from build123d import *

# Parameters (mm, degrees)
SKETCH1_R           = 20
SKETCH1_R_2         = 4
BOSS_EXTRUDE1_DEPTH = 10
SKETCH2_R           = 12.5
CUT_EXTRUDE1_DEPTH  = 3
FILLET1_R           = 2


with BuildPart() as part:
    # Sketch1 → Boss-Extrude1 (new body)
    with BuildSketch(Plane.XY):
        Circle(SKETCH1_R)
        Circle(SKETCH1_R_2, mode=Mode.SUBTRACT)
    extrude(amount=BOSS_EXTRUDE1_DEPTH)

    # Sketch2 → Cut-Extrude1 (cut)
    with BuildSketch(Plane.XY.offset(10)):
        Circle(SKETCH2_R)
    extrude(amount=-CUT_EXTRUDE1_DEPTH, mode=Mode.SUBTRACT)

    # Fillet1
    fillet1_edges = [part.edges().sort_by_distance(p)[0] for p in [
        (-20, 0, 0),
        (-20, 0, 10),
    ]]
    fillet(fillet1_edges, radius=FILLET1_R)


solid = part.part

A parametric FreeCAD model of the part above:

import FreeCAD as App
import Part
import Sketcher


def edges_at(feature, points):
    """Names of the edges that pass closest to the given points."""
    edges = feature.Shape.Edges
    near = lambda p: min(range(len(edges)), key=lambda i: edges[i].distToShape(Part.Vertex(*p))[0])
    return sorted({f"Edge{near(p) + 1}" for p in points})

doc = App.newDocument("Part")
params = doc.addObject("Spreadsheet::Sheet", "Params")
for row, (alias, value) in enumerate([
    ("sketch1_diameter", "40 mm"),
    ("sketch1_diameter2", "8 mm"),
    ("pad1_length", "10 mm"),
    ("sketch2_diameter", "25 mm"),
    ("pocket1_length", "3 mm"),
    ("fillet_radius", "2 mm"),
], start=1):
    params.set(f"A{row}", alias)
    params.set(f"B{row}", "=" + value)
    params.setAlias(f"B{row}", alias)

body = doc.addObject("PartDesign::Body", "Body")

# Sketch on XY plane
sketch1 = body.newObject("Sketcher::SketchObject", "Sketch")
sketch1.AttachmentSupport = (doc.getObject("XY_Plane"), [""])
sketch1.MapMode = "FlatFace"
sketch1.addGeometry([
    Part.Circle(App.Vector(0, 0, 0), App.Vector(0, 0, 1), 20),
    Part.Circle(App.Vector(0, 0, 0), App.Vector(0, 0, 1), 4),
], False)
sketch1.addConstraint([
    Sketcher.Constraint("Coincident", 0, 3, -1, 1),
    Sketcher.Constraint("Coincident", 1, 3, -1, 1),
    Sketcher.Constraint("Diameter", 0, 40.0),
    Sketcher.Constraint("Diameter", 1, 8.0),
])
sketch1.setExpression("Constraints[2]", "Params.sketch1_diameter")
sketch1.setExpression("Constraints[3]", "Params.sketch1_diameter2")
pad1 = body.newObject("PartDesign::Pad", "Pad")
pad1.Profile = sketch1
pad1.setExpression("Length", "Params.pad1_length")

# Sketch on XY plane
sketch2 = body.newObject("Sketcher::SketchObject", "Sketch001")
sketch2.AttachmentSupport = (doc.getObject("XY_Plane"), [""])
sketch2.MapMode = "FlatFace"
sketch2.AttachmentOffset = App.Placement(App.Vector(0, 0, 10), App.Rotation())
sketch2.addGeometry(Part.Circle(App.Vector(0, 0, 0), App.Vector(0, 0, 1), 12), False)
sketch2.addConstraint([
    Sketcher.Constraint("Coincident", 0, 3, -1, 1),
    Sketcher.Constraint("Diameter", 0, 25.0),
])
sketch2.setExpression("Constraints[1]", "Params.sketch2_diameter")
pocket1 = body.newObject("PartDesign::Pocket", "Pocket")
pocket1.Profile = sketch2
pocket1.setExpression("Length", "Params.pocket1_length")
doc.recompute()

fillet = body.newObject("PartDesign::Fillet", "Fillet")
fillet.Base = (pocket1, edges_at(pocket1, [(-20, 0, 0), (-20, 0, 10)]))
fillet.setExpression("Radius", "Params.fillet_radius")

doc.recompute()
